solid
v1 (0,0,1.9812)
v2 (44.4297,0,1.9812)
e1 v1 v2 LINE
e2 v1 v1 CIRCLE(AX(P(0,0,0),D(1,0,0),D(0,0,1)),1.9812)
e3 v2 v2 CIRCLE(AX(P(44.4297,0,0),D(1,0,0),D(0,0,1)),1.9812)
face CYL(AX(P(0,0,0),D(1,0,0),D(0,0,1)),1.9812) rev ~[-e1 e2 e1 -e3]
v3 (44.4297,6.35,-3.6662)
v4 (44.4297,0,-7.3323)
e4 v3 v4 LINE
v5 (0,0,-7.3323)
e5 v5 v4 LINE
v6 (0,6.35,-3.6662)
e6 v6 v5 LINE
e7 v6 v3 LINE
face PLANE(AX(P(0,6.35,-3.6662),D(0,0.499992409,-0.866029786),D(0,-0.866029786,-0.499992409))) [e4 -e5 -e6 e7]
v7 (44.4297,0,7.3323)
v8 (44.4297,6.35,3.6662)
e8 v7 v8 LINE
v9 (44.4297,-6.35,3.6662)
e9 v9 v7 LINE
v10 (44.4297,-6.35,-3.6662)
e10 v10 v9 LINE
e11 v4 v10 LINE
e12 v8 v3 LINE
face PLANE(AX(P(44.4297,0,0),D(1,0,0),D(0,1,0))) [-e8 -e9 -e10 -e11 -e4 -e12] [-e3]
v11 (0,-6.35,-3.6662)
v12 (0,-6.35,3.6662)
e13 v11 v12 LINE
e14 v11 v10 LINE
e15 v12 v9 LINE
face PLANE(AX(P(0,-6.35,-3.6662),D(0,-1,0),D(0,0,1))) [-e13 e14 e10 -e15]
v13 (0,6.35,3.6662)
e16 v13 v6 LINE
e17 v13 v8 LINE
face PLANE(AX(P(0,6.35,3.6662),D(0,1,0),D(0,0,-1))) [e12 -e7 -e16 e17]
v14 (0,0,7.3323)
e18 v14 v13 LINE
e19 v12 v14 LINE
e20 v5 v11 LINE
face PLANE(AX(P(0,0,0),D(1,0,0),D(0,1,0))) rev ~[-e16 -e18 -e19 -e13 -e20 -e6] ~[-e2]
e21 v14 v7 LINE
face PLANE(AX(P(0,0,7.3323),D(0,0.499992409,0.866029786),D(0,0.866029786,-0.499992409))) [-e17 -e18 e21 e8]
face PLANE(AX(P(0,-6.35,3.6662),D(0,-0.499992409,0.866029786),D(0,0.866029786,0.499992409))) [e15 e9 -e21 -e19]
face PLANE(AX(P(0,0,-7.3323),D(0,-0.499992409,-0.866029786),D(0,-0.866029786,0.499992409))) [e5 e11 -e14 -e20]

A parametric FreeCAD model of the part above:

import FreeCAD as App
import Part
import Sketcher
from FreeCAD import Vector
Q = App.Units.Quantity

doc = App.newDocument("Part")
body = doc.addObject("PartDesign::Body", "Body")

sketch1 = body.newObject("Sketcher::SketchObject", "Sketch")
sketch1.AttachmentSupport = (doc.getObject("YZ_Plane"), [""])
sketch1.MapMode = "FlatFace"
sketch1.addGeometry(Part.LineSegment(Vector(-6, 4, 0), Vector(-6, -4, 0)), False)
sketch1.addGeometry(Part.LineSegment(Vector(-6, -4, 0), Vector(0, -7, 0)), False)
sketch1.addGeometry(Part.LineSegment(Vector(0, -7, 0), Vector(6, -4, 0)), False)
sketch1.addGeometry(Part.LineSegment(Vector(6, -4, 0), Vector(6, 4, 0)), False)
sketch1.addGeometry(Part.LineSegment(Vector(6, 4, 0), Vector(0, 7, 0)), False)
sketch1.addGeometry(Part.LineSegment(Vector(0, 7, 0), Vector(-6, 4, 0)), False)
sketch1.addConstraint(Sketcher.Constraint("Coincident", 0, 2, 1, 1))
sketch1.addConstraint(Sketcher.Constraint("Coincident", 1, 2, 2, 1))
sketch1.addConstraint(Sketcher.Constraint("Coincident", 2, 2, 3, 1))
sketch1.addConstraint(Sketcher.Constraint("Coincident", 3, 2, 4, 1))
sketch1.addConstraint(Sketcher.Constraint("Coincident", 4, 2, 5, 1))
sketch1.addConstraint(Sketcher.Constraint("Coincident", 5, 2, 0, 1))
sketch1.addConstraint(Sketcher.Constraint("Vertical", 0))
sketch1.addConstraint(Sketcher.Constraint("Vertical", 3))
sketch1.addConstraint(Sketcher.Constraint("Symmetric", 0, 2, 3, 2, -1, 1))
sketch1.addConstraint(Sketcher.Constraint("Symmetric", 1, 2, 4, 2, -1, 1))
sketch1.addConstraint(Sketcher.Constraint("PointOnObject", 1, 2, -2))
sketch1.addConstraint(Sketcher.Constraint("Parallel", 2, 5))
sketch1.addConstraint(Sketcher.Constraint("Horizontal", 0, 2, 2, 2))
sketch1.addConstraint(Sketcher.Constraint("DistanceX", 0, 2, 2, 2, Q("0.5 in")))
sketch1.addConstraint(Sketcher.Constraint("Angle", 1, Q("-29.9995 deg")))
sketch1.addConstraint(Sketcher.Constraint("DistanceY", 1, 2, 3, 2, Q("0.433 in")))
pad1 = body.newObject("PartDesign::Pad", "Pad")
pad1.Profile = sketch1
pad1.Length = Q("1.7492008 in")

sketch2 = body.newObject("Sketcher::SketchObject", "Sketch001")
sketch2.AttachmentSupport = (doc.getObject("YZ_Plane"), [""])
sketch2.MapMode = "FlatFace"
sketch2.addGeometry(Part.Circle(Vector(0, 0, 0), Vector(0, 0, 1), 2), False)
sketch2.addConstraint(Sketcher.Constraint("Coincident", 0, 3, -1, 1))
sketch2.addConstraint(Sketcher.Constraint("Diameter", 0, Q("0.156 in")))
doc.recompute()
hole = body.newObject("PartDesign::Hole", "Hole")
hole.Profile = sketch2
hole.ThreadType = "None"
hole.Diameter = Q("0.156 in")
hole.DepthType = "ThroughAll"
hole.Reversed = True

doc.recompute()
